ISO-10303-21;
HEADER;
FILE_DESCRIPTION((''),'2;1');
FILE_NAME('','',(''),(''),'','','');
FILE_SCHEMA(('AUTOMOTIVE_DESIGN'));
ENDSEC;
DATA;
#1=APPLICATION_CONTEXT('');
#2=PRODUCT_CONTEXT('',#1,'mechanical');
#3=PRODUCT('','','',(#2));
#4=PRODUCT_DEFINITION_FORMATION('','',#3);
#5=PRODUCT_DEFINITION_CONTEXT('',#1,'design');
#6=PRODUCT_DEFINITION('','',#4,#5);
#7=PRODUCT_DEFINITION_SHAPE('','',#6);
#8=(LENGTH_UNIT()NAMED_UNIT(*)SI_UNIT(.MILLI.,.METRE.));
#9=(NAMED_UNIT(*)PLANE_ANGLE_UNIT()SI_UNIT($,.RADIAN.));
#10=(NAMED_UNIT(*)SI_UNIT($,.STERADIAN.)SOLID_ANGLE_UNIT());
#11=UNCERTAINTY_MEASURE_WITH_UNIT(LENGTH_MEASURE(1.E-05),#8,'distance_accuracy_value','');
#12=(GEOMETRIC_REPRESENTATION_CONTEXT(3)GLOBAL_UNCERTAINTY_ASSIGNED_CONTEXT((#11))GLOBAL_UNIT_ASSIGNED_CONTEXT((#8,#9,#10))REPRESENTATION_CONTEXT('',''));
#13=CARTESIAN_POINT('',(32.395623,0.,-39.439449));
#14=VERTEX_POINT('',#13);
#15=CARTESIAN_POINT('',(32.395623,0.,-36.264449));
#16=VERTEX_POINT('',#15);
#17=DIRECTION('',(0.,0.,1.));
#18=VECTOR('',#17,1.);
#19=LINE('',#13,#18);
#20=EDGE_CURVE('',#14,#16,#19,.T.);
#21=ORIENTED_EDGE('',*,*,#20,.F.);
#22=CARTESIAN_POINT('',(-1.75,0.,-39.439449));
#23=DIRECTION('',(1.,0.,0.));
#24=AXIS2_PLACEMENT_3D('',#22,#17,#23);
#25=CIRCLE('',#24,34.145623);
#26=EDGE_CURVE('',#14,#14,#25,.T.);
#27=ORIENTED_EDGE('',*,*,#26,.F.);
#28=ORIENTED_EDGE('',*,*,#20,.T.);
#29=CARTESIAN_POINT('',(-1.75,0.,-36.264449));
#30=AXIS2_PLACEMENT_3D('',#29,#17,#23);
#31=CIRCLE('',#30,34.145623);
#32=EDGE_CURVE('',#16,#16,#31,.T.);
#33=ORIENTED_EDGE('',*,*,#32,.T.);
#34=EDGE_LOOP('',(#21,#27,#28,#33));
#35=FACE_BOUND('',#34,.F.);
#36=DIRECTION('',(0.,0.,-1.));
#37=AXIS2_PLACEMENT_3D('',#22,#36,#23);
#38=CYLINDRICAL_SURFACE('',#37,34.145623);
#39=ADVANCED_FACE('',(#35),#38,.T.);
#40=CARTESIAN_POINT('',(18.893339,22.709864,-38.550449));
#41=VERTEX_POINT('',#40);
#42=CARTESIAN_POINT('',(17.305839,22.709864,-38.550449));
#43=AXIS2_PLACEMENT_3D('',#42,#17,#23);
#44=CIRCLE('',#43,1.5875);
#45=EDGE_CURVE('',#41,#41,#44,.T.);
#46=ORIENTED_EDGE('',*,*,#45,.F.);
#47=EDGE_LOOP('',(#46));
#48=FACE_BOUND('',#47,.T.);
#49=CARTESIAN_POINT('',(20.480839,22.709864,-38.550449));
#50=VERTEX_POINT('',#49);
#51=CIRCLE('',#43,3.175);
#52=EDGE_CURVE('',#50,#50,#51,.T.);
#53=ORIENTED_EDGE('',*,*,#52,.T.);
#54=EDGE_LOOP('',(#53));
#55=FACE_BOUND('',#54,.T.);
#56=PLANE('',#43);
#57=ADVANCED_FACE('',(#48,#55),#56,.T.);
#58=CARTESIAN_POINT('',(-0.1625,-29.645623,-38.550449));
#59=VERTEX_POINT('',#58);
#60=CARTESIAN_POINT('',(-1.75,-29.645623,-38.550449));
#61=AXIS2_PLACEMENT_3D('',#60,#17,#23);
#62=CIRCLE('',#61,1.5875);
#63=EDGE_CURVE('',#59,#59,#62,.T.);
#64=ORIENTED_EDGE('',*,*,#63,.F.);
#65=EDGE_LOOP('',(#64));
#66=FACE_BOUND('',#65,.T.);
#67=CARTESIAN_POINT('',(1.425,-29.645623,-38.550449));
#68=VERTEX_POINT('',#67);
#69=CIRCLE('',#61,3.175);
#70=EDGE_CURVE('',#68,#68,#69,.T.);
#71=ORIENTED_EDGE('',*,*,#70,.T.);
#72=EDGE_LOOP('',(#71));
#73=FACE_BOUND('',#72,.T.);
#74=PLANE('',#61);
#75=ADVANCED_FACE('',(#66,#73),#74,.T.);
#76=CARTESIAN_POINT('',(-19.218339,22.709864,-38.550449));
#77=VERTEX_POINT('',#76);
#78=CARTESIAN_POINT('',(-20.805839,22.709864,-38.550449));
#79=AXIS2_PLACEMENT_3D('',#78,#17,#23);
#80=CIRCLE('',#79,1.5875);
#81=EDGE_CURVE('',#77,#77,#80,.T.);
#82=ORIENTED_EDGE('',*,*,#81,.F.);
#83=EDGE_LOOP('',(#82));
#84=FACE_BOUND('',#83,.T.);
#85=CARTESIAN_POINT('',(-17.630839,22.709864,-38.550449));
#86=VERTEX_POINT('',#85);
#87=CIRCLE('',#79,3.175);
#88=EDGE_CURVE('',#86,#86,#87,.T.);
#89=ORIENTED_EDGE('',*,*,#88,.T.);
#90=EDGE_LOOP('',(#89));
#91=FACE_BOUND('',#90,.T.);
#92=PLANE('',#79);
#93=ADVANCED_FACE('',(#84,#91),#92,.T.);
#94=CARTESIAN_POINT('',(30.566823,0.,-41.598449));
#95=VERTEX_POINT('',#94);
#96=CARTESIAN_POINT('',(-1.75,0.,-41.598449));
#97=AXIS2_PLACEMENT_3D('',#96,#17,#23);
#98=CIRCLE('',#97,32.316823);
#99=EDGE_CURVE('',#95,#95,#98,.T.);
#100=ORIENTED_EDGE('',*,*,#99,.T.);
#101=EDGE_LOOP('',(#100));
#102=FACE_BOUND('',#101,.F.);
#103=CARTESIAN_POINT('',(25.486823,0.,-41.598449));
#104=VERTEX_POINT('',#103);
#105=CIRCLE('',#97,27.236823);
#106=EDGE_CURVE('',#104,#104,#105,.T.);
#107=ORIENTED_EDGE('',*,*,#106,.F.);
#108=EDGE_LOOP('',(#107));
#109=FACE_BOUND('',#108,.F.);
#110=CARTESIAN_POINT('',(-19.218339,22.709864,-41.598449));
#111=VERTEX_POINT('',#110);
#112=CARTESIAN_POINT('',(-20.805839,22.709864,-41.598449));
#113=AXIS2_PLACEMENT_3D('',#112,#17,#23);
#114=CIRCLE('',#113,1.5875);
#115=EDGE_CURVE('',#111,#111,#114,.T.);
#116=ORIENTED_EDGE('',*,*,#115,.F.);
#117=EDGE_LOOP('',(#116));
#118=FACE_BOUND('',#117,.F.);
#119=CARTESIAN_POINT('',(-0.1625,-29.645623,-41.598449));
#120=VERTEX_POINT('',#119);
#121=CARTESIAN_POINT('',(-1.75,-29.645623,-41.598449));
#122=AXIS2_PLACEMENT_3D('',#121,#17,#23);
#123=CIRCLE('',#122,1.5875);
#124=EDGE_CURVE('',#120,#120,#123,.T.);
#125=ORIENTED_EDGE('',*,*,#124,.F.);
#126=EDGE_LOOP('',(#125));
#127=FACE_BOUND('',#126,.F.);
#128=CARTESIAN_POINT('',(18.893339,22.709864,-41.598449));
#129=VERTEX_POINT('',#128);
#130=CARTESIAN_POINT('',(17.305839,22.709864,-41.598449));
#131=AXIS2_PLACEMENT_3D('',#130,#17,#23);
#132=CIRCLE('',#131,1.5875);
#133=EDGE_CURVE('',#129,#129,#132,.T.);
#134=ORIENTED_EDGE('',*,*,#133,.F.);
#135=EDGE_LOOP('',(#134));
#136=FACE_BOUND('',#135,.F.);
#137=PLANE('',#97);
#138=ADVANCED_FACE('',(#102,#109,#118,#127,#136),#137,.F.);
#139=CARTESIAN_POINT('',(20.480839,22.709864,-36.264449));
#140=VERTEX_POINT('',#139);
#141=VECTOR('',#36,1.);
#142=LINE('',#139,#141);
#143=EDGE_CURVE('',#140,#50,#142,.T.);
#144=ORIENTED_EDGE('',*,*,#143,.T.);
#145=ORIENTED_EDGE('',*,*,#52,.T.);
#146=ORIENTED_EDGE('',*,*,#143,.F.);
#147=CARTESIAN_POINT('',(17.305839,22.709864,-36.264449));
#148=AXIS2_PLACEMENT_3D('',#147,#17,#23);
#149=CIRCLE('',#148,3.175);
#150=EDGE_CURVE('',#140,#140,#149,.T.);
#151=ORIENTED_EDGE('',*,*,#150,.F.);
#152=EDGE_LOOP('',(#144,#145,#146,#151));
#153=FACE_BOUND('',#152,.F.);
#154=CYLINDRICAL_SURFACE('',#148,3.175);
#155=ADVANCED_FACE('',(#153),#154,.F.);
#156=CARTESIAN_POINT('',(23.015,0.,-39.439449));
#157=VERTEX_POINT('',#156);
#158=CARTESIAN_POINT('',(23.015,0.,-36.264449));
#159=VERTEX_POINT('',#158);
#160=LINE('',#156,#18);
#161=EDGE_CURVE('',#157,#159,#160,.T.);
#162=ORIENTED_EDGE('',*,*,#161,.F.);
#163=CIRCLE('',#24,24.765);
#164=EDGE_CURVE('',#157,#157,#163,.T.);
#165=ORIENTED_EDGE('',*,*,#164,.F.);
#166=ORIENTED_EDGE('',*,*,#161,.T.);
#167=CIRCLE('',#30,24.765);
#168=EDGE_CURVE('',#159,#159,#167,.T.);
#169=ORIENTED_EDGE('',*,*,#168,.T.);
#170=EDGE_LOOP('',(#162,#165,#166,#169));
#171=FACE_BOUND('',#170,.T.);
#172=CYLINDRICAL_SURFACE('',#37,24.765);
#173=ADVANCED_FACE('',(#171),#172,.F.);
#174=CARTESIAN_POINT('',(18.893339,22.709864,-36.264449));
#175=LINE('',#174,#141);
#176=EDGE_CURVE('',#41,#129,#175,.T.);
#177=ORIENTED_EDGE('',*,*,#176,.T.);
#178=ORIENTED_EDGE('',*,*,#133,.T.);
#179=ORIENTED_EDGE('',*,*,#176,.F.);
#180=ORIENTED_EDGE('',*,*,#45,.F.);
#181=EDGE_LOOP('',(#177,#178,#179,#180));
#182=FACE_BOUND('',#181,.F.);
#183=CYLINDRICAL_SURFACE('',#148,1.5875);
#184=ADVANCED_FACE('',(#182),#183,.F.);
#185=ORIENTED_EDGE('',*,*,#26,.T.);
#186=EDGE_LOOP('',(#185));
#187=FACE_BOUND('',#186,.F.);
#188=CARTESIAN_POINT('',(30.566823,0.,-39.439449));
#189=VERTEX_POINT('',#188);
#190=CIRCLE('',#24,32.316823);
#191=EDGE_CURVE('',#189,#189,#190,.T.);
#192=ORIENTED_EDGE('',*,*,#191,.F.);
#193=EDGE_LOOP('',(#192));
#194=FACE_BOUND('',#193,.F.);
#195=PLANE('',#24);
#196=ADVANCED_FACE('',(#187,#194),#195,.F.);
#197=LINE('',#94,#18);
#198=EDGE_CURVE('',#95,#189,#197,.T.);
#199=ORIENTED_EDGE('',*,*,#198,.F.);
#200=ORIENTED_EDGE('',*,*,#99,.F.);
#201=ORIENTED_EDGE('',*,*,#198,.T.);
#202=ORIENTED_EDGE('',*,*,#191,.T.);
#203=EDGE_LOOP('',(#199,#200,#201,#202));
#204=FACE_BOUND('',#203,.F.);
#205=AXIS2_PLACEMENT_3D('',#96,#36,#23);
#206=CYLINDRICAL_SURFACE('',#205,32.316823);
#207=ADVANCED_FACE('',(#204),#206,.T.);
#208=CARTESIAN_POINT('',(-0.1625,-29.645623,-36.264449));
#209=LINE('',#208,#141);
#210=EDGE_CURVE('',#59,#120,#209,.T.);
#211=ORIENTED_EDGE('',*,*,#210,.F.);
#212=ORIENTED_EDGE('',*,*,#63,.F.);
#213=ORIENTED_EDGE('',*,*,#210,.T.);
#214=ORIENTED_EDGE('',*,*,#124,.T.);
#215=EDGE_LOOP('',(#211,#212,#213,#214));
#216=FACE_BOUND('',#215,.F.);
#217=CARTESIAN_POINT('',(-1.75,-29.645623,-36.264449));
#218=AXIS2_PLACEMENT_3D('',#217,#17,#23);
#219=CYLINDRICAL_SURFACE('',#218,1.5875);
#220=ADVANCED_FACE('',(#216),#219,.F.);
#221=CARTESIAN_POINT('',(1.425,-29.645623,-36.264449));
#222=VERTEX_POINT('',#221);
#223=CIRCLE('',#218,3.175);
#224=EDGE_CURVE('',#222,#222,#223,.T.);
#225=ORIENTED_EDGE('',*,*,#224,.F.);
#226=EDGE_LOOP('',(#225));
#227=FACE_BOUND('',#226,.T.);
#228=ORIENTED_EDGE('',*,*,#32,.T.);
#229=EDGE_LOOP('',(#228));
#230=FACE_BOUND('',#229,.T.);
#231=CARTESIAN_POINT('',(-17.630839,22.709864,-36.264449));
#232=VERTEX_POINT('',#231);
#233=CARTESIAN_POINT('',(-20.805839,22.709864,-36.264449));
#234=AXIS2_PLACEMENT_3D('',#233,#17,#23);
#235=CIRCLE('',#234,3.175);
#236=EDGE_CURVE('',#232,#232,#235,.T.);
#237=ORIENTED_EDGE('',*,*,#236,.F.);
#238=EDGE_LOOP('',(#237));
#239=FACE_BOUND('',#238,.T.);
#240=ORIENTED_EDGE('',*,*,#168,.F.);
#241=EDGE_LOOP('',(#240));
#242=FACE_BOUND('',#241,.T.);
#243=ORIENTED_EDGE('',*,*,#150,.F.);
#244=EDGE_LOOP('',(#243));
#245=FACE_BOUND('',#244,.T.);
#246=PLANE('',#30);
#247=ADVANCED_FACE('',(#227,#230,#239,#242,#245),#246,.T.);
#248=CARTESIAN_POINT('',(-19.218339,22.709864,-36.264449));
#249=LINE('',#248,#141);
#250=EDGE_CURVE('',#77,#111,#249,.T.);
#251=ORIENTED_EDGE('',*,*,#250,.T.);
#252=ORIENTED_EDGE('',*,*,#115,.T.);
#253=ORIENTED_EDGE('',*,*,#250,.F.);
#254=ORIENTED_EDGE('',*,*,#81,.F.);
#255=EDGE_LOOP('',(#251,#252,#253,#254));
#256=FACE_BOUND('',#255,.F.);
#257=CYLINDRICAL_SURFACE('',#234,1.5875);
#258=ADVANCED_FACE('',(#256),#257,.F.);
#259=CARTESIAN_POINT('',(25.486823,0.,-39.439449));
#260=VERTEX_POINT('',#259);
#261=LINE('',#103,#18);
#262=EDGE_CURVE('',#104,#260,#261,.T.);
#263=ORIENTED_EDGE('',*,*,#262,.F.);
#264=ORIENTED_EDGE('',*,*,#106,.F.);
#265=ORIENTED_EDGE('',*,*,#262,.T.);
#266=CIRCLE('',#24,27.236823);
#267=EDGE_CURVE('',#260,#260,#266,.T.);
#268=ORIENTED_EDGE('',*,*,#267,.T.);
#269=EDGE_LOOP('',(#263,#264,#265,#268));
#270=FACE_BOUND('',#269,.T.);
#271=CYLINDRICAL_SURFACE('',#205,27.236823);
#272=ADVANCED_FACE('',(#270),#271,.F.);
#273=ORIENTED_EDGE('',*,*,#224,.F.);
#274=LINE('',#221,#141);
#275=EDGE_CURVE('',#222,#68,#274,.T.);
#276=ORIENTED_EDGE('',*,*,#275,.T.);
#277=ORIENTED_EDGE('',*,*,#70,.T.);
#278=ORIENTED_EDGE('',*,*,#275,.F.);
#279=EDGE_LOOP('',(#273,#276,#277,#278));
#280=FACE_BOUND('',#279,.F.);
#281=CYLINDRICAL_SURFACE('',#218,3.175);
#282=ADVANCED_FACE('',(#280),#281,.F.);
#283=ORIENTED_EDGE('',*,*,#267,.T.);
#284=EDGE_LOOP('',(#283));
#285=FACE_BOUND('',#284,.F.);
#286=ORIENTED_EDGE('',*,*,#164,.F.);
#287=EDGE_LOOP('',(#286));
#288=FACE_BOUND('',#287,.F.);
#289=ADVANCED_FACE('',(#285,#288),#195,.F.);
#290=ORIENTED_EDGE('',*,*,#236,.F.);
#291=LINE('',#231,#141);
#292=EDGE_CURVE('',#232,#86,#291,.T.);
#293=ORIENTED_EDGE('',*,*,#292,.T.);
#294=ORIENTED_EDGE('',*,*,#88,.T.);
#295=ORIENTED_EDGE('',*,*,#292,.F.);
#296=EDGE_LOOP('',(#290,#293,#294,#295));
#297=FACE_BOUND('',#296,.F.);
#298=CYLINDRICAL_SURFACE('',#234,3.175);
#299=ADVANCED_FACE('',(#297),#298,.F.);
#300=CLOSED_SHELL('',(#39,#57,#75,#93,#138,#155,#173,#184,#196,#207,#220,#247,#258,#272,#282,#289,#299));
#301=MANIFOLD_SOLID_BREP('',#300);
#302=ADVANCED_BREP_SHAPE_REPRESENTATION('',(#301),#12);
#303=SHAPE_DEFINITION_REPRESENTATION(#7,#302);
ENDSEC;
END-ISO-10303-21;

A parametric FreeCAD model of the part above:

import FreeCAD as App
import Part
import Sketcher
Q = App.Units.Quantity

doc = App.newDocument("Part")
params = doc.addObject("Spreadsheet::Sheet", "Params")
for row, (alias, value) in enumerate([
    ("pad1_length", "0.085 in"),
    ("sketch2_diameter", "1.95 in"),
    ("pad2_length", "0.125 in"),
    ("sketch3_diameter", "0.125 in"),
    ("sketch4_diameter", "0.25 in"),
    ("pocket2_length", "0.09 in"),
], start=1):
    params.set(f"A{row}", alias)
    params.set(f"B{row}", "=" + value)
    params.setAlias(f"B{row}", alias)

body = doc.addObject("PartDesign::Body", "Body")

# Sketch on XY plane
sketch1 = body.newObject("Sketcher::SketchObject", "Sketch")
sketch1.AttachmentSupport = (doc.getObject("XY_Plane"), [""])
sketch1.MapMode = "FlatFace"
sketch1.AttachmentOffset = App.Placement(App.Vector(0, 0, -41.598449), App.Rotation())
sketch1.addGeometry(Part.Circle(App.Vector(-2, 0, 0), App.Vector(0, 0, 1), 32), False)
sketch1.addGeometry(Part.Circle(App.Vector(-2, 0, 0), App.Vector(0, 0, 1), 27), False)
sketch1.addConstraint(Sketcher.Constraint("Coincident", 1, 3, 0, 3))
sketch1.addConstraint(Sketcher.Constraint("PointOnObject", 0, 3, -1))
sketch1.addConstraint(Sketcher.Constraint("Diameter", 0, 64.633646))
sketch1.addConstraint(Sketcher.Constraint("Diameter", 1, 54.473646))
sketch1.addConstraint(Sketcher.Constraint("DistanceX", 0, 3, -1, 1, 1.75))
pad1 = body.newObject("PartDesign::Pad", "Pad")
pad1.Profile = sketch1
pad1.setExpression("Length", "Params.pad1_length")

# Sketch on XY plane
sketch2 = body.newObject("Sketcher::SketchObject", "Sketch001")
sketch2.AttachmentSupport = (doc.getObject("XY_Plane"), [""])
sketch2.MapMode = "FlatFace"
sketch2.AttachmentOffset = App.Placement(App.Vector(0, 0, -39.439449), App.Rotation())
sketch2.addGeometry(Part.Circle(App.Vector(-2, 0, 0), App.Vector(0, 0, 1), 34), False)
sketch2.addGeometry(Part.Circle(App.Vector(-2, 0, 0), App.Vector(0, 0, 1), 25), False)
sketch2.addConstraint(Sketcher.Constraint("Coincident", 1, 3, 0, 3))
sketch2.addConstraint(Sketcher.Constraint("PointOnObject", 0, 3, -1))
sketch2.addConstraint(Sketcher.Constraint("Diameter", 1, Q("1.95 in")))
sketch2.addConstraint(Sketcher.Constraint("Diameter", 0, 68.291246))
sketch2.addConstraint(Sketcher.Constraint("DistanceX", 0, 3, -1, 1, 1.75))
sketch2.setExpression("Constraints[2]", "Params.sketch2_diameter")
pad2 = body.newObject("PartDesign::Pad", "Pad001")
pad2.Profile = sketch2
pad2.setExpression("Length", "Params.pad2_length")

# Sketch on XY plane
sketch3 = body.newObject("Sketcher::SketchObject", "Sketch002")
sketch3.AttachmentSupport = (doc.getObject("XY_Plane"), [""])
sketch3.MapMode = "FlatFace"
sketch3.AttachmentOffset = App.Placement(App.Vector(0, 0, -36.264449), App.Rotation())
sketch3.addGeometry(Part.Circle(App.Vector(-1.8, -29.6, 0), App.Vector(0, 0, 1), 1.6), False)
sketch3.addGeometry(Part.Circle(App.Vector(17.3, 22.7, 0), App.Vector(0, 0, 1), 1.6), False)
sketch3.addGeometry(Part.Circle(App.Vector(-20.8, 22.7, 0), App.Vector(0, 0, 1), 1.6), False)
sketch3.addConstraint(Sketcher.Constraint("Equal", 0, 1))
sketch3.addConstraint(Sketcher.Constraint("Equal", 1, 2))
sketch3.addConstraint(Sketcher.Constraint("Horizontal", 1, 3, 2, 3))
sketch3.addConstraint(Sketcher.Constraint("Diameter", 0, Q("0.125 in")))
sketch3.addConstraint(Sketcher.Constraint("DistanceX", 0, 3, -1, 1, 1.75))
sketch3.addConstraint(Sketcher.Constraint("DistanceX", -1, 1, 1, 3, 17.305839))
sketch3.addConstraint(Sketcher.Constraint("DistanceX", 2, 3, -1, 1, 20.805839))
sketch3.addConstraint(Sketcher.Constraint("DistanceY", 0, 3, -1, 1, 29.645623))
sketch3.addConstraint(Sketcher.Constraint("DistanceY", -1, 1, 1, 3, 22.709864))
sketch3.setExpression("Constraints[3]", "Params.sketch3_diameter")
pocket1 = body.newObject("PartDesign::Pocket", "Pocket")
pocket1.Profile = sketch3
pocket1.Type = "ThroughAll"

# Sketch on XY plane
sketch4 = body.newObject("Sketcher::SketchObject", "Sketch003")
sketch4.AttachmentSupport = (doc.getObject("XY_Plane"), [""])
sketch4.MapMode = "FlatFace"
sketch4.AttachmentOffset = App.Placement(App.Vector(0, 0, -36.264449), App.Rotation())
sketch4.addGeometry(Part.Circle(App.Vector(-20.8, 22.7, 0), App.Vector(0, 0, 1), 3.2), False)
sketch4.addGeometry(Part.Circle(App.Vector(17.3, 22.7, 0), App.Vector(0, 0, 1), 3.2), False)
sketch4.addGeometry(Part.Circle(App.Vector(-1.8, -29.6, 0), App.Vector(0, 0, 1), 3.2), False)
sketch4.addConstraint(Sketcher.Constraint("Equal", 0, 1))
sketch4.addConstraint(Sketcher.Constraint("Equal", 1, 2))
sketch4.addConstraint(Sketcher.Constraint("Horizontal", 0, 3, 1, 3))
sketch4.addConstraint(Sketcher.Constraint("Diameter", 0, Q("0.25 in")))
sketch4.addConstraint(Sketcher.Constraint("DistanceX", 2, 3, -1, 1, 1.75))
sketch4.addConstraint(Sketcher.Constraint("DistanceX", 0, 3, -1, 1, 20.805839))
sketch4.addConstraint(Sketcher.Constraint("DistanceX", -1, 1, 1, 3, 17.305839))
sketch4.addConstraint(Sketcher.Constraint("DistanceY", -1, 1, 0, 3, 22.709864))
sketch4.addConstraint(Sketcher.Constraint("DistanceY", 2, 3, -1, 1, 29.645623))
sketch4.setExpression("Constraints[3]", "Params.sketch4_diameter")
pocket2 = body.newObject("PartDesign::Pocket", "Pocket001")
pocket2.Profile = sketch4
pocket2.setExpression("Length", "Params.pocket2_length")

doc.recompute()
